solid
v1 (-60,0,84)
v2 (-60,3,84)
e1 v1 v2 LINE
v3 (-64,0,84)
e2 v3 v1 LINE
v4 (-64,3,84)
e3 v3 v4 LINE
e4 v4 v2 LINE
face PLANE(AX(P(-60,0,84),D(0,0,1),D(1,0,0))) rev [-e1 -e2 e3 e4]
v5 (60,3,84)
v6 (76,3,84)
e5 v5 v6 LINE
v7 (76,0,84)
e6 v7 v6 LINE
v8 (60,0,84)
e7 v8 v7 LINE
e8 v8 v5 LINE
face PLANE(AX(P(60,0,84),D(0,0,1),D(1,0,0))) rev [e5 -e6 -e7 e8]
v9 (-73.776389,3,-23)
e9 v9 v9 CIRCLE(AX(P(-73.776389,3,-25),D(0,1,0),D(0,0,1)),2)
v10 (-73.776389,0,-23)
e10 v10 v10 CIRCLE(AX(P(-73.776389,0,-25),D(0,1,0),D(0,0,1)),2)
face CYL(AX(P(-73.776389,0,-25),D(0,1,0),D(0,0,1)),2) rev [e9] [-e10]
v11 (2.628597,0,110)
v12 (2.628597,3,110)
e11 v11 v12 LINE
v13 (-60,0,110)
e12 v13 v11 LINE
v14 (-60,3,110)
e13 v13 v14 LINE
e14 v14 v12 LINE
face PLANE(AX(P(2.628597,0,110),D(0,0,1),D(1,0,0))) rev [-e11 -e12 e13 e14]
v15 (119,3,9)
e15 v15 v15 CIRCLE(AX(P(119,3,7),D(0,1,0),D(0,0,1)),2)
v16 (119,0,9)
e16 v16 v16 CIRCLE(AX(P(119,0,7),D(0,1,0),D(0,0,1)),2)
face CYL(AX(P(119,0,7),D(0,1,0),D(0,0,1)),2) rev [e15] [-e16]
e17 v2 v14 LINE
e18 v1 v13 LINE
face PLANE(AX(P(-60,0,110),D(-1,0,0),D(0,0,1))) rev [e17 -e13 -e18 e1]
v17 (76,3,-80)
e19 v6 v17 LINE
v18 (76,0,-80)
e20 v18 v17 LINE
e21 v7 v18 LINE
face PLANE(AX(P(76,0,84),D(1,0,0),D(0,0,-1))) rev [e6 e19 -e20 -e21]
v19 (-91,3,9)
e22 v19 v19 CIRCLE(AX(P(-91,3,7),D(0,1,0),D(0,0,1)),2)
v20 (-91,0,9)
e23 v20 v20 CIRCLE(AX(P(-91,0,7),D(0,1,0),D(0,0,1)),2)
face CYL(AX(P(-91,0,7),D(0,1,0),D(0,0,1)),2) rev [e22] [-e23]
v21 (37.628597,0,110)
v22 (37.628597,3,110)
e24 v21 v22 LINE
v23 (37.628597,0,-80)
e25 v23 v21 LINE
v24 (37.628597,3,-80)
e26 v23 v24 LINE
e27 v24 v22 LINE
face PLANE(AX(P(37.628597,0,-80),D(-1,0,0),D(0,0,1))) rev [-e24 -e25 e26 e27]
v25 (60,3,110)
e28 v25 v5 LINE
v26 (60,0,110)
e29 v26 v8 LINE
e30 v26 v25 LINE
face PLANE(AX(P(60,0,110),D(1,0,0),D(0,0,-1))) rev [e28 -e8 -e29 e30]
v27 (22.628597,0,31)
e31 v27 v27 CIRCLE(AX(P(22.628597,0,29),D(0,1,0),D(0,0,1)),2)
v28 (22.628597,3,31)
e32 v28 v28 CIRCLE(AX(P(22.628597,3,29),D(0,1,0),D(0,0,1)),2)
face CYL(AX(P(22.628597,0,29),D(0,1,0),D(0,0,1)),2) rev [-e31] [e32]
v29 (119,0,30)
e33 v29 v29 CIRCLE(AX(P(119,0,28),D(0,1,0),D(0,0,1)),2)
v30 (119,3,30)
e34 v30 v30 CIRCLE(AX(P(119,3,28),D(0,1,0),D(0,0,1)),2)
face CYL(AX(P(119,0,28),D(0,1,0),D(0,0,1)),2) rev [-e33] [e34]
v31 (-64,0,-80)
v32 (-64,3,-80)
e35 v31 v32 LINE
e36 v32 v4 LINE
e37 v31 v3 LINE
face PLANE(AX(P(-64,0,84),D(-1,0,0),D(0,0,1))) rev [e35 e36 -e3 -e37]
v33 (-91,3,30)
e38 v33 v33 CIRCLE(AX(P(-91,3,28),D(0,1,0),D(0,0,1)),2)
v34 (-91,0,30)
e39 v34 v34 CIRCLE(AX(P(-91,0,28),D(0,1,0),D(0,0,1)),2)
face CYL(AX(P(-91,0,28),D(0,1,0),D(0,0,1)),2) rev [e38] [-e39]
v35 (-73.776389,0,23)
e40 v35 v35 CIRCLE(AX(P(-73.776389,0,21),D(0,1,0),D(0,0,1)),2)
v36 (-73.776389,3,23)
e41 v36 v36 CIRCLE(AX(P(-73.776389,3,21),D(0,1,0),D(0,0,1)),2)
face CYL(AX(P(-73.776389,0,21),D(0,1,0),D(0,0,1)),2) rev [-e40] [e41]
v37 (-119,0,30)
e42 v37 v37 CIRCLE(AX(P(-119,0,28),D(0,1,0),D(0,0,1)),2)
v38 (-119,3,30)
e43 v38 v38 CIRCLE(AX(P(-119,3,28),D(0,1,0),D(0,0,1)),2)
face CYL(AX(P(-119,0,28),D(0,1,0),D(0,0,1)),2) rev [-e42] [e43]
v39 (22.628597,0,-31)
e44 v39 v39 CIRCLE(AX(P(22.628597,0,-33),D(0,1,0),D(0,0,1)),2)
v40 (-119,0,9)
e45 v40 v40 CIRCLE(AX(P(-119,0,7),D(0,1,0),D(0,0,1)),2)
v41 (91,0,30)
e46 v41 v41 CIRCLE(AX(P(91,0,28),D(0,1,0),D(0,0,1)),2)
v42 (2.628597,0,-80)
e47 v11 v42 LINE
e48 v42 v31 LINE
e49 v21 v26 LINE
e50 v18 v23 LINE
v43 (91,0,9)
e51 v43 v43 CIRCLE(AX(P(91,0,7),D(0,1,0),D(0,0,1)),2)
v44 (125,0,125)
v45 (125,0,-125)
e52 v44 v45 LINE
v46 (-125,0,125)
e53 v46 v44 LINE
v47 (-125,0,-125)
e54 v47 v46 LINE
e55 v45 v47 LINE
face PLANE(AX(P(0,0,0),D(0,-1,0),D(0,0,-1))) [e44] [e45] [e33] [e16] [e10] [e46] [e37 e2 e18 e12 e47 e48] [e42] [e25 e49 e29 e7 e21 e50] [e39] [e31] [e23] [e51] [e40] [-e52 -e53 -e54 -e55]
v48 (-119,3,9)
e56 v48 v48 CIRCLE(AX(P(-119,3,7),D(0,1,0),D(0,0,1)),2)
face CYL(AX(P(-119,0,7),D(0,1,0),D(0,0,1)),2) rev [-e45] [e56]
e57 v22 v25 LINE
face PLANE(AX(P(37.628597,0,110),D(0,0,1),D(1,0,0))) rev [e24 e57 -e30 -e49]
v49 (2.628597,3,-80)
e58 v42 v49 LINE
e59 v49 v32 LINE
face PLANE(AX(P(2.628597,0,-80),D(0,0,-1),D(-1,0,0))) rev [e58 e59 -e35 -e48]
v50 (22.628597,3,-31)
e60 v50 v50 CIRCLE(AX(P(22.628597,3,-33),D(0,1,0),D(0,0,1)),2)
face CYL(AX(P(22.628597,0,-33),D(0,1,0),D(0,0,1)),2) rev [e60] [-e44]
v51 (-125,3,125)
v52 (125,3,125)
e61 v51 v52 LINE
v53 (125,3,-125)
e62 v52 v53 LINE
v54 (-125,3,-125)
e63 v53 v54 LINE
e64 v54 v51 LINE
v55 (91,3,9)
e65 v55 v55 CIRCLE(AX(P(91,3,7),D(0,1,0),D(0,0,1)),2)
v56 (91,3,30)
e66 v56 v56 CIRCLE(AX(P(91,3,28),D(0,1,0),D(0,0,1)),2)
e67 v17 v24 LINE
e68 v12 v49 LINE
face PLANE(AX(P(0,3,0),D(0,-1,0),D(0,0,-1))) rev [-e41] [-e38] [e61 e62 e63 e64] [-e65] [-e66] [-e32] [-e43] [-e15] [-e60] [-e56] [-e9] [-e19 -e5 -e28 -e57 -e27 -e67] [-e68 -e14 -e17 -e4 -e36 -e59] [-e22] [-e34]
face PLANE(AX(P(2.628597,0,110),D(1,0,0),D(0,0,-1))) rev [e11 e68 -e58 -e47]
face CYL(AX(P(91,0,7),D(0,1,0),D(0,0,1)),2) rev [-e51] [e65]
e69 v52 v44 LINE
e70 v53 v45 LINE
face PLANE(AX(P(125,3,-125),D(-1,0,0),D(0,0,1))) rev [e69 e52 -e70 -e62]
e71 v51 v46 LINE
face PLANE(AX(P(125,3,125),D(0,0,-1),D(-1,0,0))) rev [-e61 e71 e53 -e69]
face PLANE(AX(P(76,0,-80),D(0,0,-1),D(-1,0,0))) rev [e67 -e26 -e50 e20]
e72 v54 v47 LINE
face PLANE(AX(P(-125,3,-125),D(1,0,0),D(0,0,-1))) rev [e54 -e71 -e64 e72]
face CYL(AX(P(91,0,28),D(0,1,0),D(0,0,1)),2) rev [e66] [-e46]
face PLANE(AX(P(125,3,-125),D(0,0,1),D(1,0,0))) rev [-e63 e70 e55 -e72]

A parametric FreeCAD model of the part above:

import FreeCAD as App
import Part
import Sketcher
from FreeCAD import Vector
Q = App.Units.Quantity


def add_polygon(sketch, points):
    """Adds a closed chain of lines whose ends are joined by coincident constraints."""
    first, n = sketch.GeometryCount, len(points)
    for a, b in zip(points, points[1:] + points[:1]):
        sketch.addGeometry(Part.LineSegment(App.Vector(*a, 0), App.Vector(*b, 0)), False)
    for i in range(n):
        sketch.addConstraint(Sketcher.Constraint("Coincident", first + i, 2, first + (i + 1) % n, 1))

doc = App.newDocument("Part")
body = doc.addObject("PartDesign::Body", "Body")

# Sketch on XZ plane
sketch1 = doc.addObject("Sketcher::SketchObject", "Sketch")
body.addObject(sketch1)
sketch1.AttachmentSupport = (doc.XZ_Plane, [""])
sketch1.MapMode = "FlatFace"
add_polygon(sketch1, [(-125, -125), (-125, 125), (125, 125), (125, -125)])  # lines 0-3
sketch1.addConstraint(Sketcher.Constraint("Vertical", 0))
sketch1.addConstraint(Sketcher.Constraint("Horizontal", 1))
sketch1.addConstraint(Sketcher.Constraint("Vertical", 2))
sketch1.addConstraint(Sketcher.Constraint("Horizontal", 3))
sketch1.addConstraint(Sketcher.Constraint("Symmetric", 0, 2, 2, 2, -1, 1))
sketch1.addConstraint(Sketcher.Constraint("Equal", 3, 0))
sketch1.addConstraint(Sketcher.Constraint("DistanceX", 1, 1, 1, 2, Q("250 mm")))
pad1 = doc.addObject("PartDesign::Pad", "Pad")
body.addObject(pad1)
pad1.Profile = sketch1
pad1.Length = 3
pad1.Reversed = True

# Sketch on XZ plane
sketch2 = doc.addObject("Sketcher::SketchObject", "Sketch001")
body.addObject(sketch2)
sketch2.AttachmentSupport = (doc.XZ_Plane, [""])
sketch2.MapMode = "FlatFace"
sketch2.AttachmentOffset = App.Placement(Vector(0, 0, -3), App.Rotation())
sketch2.addGeometry(Part.Circle(Vector(91, 28, 0), Vector(0, 0, 1), 2), False)
sketch2.addGeometry(Part.Circle(Vector(91, 7, 0), Vector(0, 0, 1), 2), False)
sketch2.addGeometry(Part.Circle(Vector(119, 7, 0), Vector(0, 0, 1), 2), False)
sketch2.addGeometry(Part.Circle(Vector(119, 28, 0), Vector(0, 0, 1), 2), False)
sketch2.addGeometry(Part.Circle(Vector(22.6, 29, 0), Vector(0, 0, 1), 2), False)
sketch2.addGeometry(Part.Circle(Vector(22.6, -33, 0), Vector(0, 0, 1), 2), False)
sketch2.addGeometry(Part.Circle(Vector(-73.8, -25, 0), Vector(0, 0, 1), 2), False)
sketch2.addGeometry(Part.Circle(Vector(-73.8, 21, 0), Vector(0, 0, 1), 2), False)
sketch2.addGeometry(Part.Circle(Vector(-91, 28, 0), Vector(0, 0, 1), 2), False)
sketch2.addGeometry(Part.Circle(Vector(-91, 7, 0), Vector(0, 0, 1), 2), False)
sketch2.addGeometry(Part.Circle(Vector(-119, 7, 0), Vector(0, 0, 1), 2), False)
sketch2.addGeometry(Part.Circle(Vector(-119, 28, 0), Vector(0, 0, 1), 2), False)
sketch2.addConstraint(Sketcher.Constraint("Equal", 0, 1))
sketch2.addConstraint(Sketcher.Constraint("Equal", 1, 2))
sketch2.addConstraint(Sketcher.Constraint("Equal", 2, 3))
sketch2.addConstraint(Sketcher.Constraint("Equal", 3, 4))
sketch2.addConstraint(Sketcher.Constraint("Equal", 4, 5))
sketch2.addConstraint(Sketcher.Constraint("Equal", 5, 6))
sketch2.addConstraint(Sketcher.Constraint("Equal", 6, 7))
sketch2.addConstraint(Sketcher.Constraint("Equal", 7, 8))
sketch2.addConstraint(Sketcher.Constraint("Equal", 8, 9))
sketch2.addConstraint(Sketcher.Constraint("Equal", 9, 10))
sketch2.addConstraint(Sketcher.Constraint("Equal", 10, 11))
sketch2.addConstraint(Sketcher.Constraint("Symmetric", 0, 3, 8, 3, -2))
sketch2.addConstraint(Sketcher.Constraint("Symmetric", 1, 3, 9, 3, -2))
sketch2.addConstraint(Sketcher.Constraint("Symmetric", 2, 3, 10, 3, -2))
sketch2.addConstraint(Sketcher.Constraint("Symmetric", 3, 3, 11, 3, -2))
sketch2.addConstraint(Sketcher.Constraint("Horizontal", 1, 3, 2, 3))
sketch2.addConstraint(Sketcher.Constraint("Horizontal", 0, 3, 3, 3))
sketch2.addConstraint(Sketcher.Constraint("Vertical", 0, 3, 1, 3))
sketch2.addConstraint(Sketcher.Constraint("Vertical", 2, 3, 3, 3))
sketch2.addConstraint(Sketcher.Constraint("Vertical", 4, 3, 5, 3))
sketch2.addConstraint(Sketcher.Constraint("Vertical", 6, 3, 7, 3))
sketch2.addConstraint(Sketcher.Constraint("Diameter", 0, Q("4 mm")))
sketch2.addConstraint(Sketcher.Constraint("DistanceX", -1, 1, 0, 3, Q("91 mm")))
sketch2.addConstraint(Sketcher.Constraint("DistanceY", -1, 1, 0, 3, Q("28 mm")))
sketch2.addConstraint(Sketcher.Constraint("DistanceY", -1, 1, 1, 3, Q("7 mm")))
sketch2.addConstraint(Sketcher.Constraint("DistanceX", -1, 1, 2, 3, Q("119 mm")))
sketch2.addConstraint(Sketcher.Constraint("DistanceY", -1, 1, 4, 3, Q("29 mm")))
sketch2.addConstraint(Sketcher.Constraint("DistanceY", 5, 3, -1, 1, Q("33 mm")))
sketch2.addConstraint(Sketcher.Constraint("DistanceY", 6, 3, -1, 1, Q("25 mm")))
sketch2.addConstraint(Sketcher.Constraint("DistanceY", -1, 1, 7, 3, Q("21 mm")))
sketch2.addConstraint(Sketcher.Constraint("DistanceX", 6, 3, -1, 1, Q("73.776389 mm")))
sketch2.addConstraint(Sketcher.Constraint("DistanceX", -1, 1, 4, 3, Q("22.628597 mm")))
pocket1 = doc.addObject("PartDesign::Pocket", "Pocket")
body.addObject(pocket1)
pocket1.Profile = sketch2
pocket1.Length = 3
pocket1.Reversed = True

# Sketch on XZ plane
sketch3 = doc.addObject("Sketcher::SketchObject", "Sketch002")
body.addObject(sketch3)
sketch3.AttachmentSupport = (doc.XZ_Plane, [""])
sketch3.MapMode = "FlatFace"
sketch3.AttachmentOffset = App.Placement(Vector(0, 0, -3), App.Rotation())
add_polygon(sketch3, [(-60, 110), (2.6, 110), (2.6, -80), (-64, -80), (-64, 84), (-60, 84)])  # lines 0-5
add_polygon(sketch3, [(37.6, -80), (37.6, 110), (60, 110), (60, 84), (76, 84), (76, -80)])  # lines 6-11
sketch3.addConstraint(Sketcher.Constraint("Horizontal", 0))
sketch3.addConstraint(Sketcher.Constraint("Vertical", 1))
sketch3.addConstraint(Sketcher.Constraint("Horizontal", 2))
sketch3.addConstraint(Sketcher.Constraint("Vertical", 3))
sketch3.addConstraint(Sketcher.Constraint("Horizontal", 4))
sketch3.addConstraint(Sketcher.Constraint("Vertical", 5))
sketch3.addConstraint(Sketcher.Constraint("Vertical", 6))
sketch3.addConstraint(Sketcher.Constraint("Horizontal", 7))
sketch3.addConstraint(Sketcher.Constraint("Vertical", 8))
sketch3.addConstraint(Sketcher.Constraint("Horizontal", 9))
sketch3.addConstraint(Sketcher.Constraint("Vertical", 10))
sketch3.addConstraint(Sketcher.Constraint("Horizontal", 11))
sketch3.addConstraint(Sketcher.Constraint("Symmetric", 5, 2, 7, 2, -2))
sketch3.addConstraint(Sketcher.Constraint("Horizontal", 4, 2, 8, 2))
sketch3.addConstraint(Sketcher.Constraint("Horizontal", 2, 2, 10, 2))
sketch3.addConstraint(Sketcher.Constraint("DistanceX", 4, 1, 4, 2, Q("4 mm")))
sketch3.addConstraint(Sketcher.Constraint("DistanceX", 9, 1, 9, 2, Q("16 mm")))
sketch3.addConstraint(Sketcher.Constraint("DistanceY", 1, 2, 1, 1, Q("190 mm")))
sketch3.addConstraint(Sketcher.Constraint("DistanceY", 3, 1, 3, 2, Q("164 mm")))
sketch3.addConstraint(Sketcher.Constraint("DistanceY", -1, 1, 0, 2, Q("110 mm")))
sketch3.addConstraint(Sketcher.Constraint("DistanceX", 2, 2, -1, 1, Q("64 mm")))
sketch3.addConstraint(Sketcher.Constraint("DistanceX", 0, 2, 6, 2, Q("35 mm")))
sketch3.addConstraint(Sketcher.Constraint("DistanceX", 0, 1, 0, 2, Q("62.628597 mm")))
pocket2 = doc.addObject("PartDesign::Pocket", "Pocket001")
body.addObject(pocket2)
pocket2.Profile = sketch3
pocket2.Length = 3
pocket2.Reversed = True

doc.recompute()
